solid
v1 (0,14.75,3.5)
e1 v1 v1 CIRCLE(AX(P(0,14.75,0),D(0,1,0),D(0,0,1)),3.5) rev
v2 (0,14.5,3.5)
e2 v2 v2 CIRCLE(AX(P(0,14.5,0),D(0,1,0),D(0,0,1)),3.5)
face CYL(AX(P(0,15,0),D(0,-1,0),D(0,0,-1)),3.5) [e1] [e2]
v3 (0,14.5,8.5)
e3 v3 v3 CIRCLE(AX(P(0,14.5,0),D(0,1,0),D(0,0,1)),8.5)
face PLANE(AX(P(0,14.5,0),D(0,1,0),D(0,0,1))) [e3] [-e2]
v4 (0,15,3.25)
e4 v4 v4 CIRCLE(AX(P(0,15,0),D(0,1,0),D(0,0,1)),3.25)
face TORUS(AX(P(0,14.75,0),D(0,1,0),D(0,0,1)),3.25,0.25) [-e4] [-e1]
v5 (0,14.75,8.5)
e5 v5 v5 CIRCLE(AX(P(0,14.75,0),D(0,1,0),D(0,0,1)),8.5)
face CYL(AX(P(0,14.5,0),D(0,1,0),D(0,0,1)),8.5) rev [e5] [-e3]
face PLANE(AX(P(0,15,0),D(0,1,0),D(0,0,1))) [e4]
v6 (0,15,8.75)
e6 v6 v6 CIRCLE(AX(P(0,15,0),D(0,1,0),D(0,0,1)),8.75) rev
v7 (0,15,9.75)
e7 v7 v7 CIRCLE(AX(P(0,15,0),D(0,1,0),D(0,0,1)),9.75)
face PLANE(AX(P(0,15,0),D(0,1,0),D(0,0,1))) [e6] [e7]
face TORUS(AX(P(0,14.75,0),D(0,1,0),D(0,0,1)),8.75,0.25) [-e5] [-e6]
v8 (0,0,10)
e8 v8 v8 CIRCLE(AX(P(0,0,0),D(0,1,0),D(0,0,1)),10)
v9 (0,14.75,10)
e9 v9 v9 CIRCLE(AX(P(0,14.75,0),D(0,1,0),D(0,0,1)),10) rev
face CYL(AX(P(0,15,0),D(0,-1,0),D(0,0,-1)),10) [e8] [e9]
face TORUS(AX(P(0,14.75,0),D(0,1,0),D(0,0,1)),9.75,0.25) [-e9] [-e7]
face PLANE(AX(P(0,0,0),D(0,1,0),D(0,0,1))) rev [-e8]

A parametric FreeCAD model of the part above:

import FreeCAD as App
import Part
import Sketcher

V = App.Vector
Q = App.Units.Quantity


def edges_at(feature, points):
    """Names of the edges that pass closest to the given points."""
    edges = feature.Shape.Edges
    near = lambda p: min(range(len(edges)), key=lambda i: edges[i].distToShape(Part.Vertex(*p))[0])
    return sorted({f"Edge{near(p) + 1}" for p in points})

doc = App.newDocument("Part")
params = doc.addObject("Spreadsheet::Sheet", "Params")
for row, (alias, value) in enumerate([
    ("sketch1_diameter", "20 mm"),
    ("pad1_length", "15 mm"),
    ("sketch2_diameter", "17 mm"),
    ("pocket1_length", "0.5 mm"),
    ("sketch3_diameter", "7 mm"),
    ("pad2_length", "0.5 mm"),
    ("fillet_radius", "0.25 mm"),
], start=1):
    params.set(f"A{row}", alias)
    params.set(f"B{row}", "=" + value)
    params.setAlias(f"B{row}", alias)

body = doc.addObject("PartDesign::Body", "Body")

sketch1 = doc.addObject("Sketcher::SketchObject", "Sketch")
body.addObject(sketch1)
sketch1.AttachmentSupport = (doc.XZ_Plane, [""])
sketch1.MapMode = "FlatFace"
sketch1.addGeometry(Part.Circle(V(0, 0, 0), V(0, 0, 1), 10), False)
sketch1.addConstraint(Sketcher.Constraint("Coincident", 0, 3, -1, 1))
sketch1.addConstraint(Sketcher.Constraint("Diameter", 0, Q("20 mm")))
sketch1.setExpression("Constraints[1]", "Params.sketch1_diameter")
pad1 = doc.addObject("PartDesign::Pad", "Pad")
body.addObject(pad1)
pad1.Profile = sketch1
pad1.setExpression("Length", "Params.pad1_length")
pad1.Reversed = True

sketch2 = doc.addObject("Sketcher::SketchObject", "Sketch001")
body.addObject(sketch2)
sketch2.AttachmentSupport = (doc.XZ_Plane, [""])
sketch2.MapMode = "FlatFace"
sketch2.AttachmentOffset = App.Placement(V(0, 0, -15), App.Rotation())
sketch2.addGeometry(Part.Circle(V(0, 0, 0), V(0, 0, 1), 8), False)
sketch2.addConstraint(Sketcher.Constraint("Coincident", 0, 3, -1, 1))
sketch2.addConstraint(Sketcher.Constraint("Diameter", 0, Q("17 mm")))
sketch2.setExpression("Constraints[1]", "Params.sketch2_diameter")
pocket1 = doc.addObject("PartDesign::Pocket", "Pocket")
body.addObject(pocket1)
pocket1.Profile = sketch2
pocket1.setExpression("Length", "Params.pocket1_length")
pocket1.Reversed = True

sketch3 = doc.addObject("Sketcher::SketchObject", "Sketch002")
body.addObject(sketch3)
sketch3.AttachmentSupport = (doc.XZ_Plane, [""])
sketch3.MapMode = "FlatFace"
sketch3.AttachmentOffset = App.Placement(V(0, 0, -14.5), App.Rotation())
sketch3.addGeometry(Part.Circle(V(0, 0, 0), V(0, 0, 1), 3.5), False)
sketch3.addConstraint(Sketcher.Constraint("Coincident", 0, 3, -1, 1))
sketch3.addConstraint(Sketcher.Constraint("Diameter", 0, Q("7 mm")))
sketch3.setExpression("Constraints[1]", "Params.sketch3_diameter")
pad2 = doc.addObject("PartDesign::Pad", "Pad001")
body.addObject(pad2)
pad2.Profile = sketch3
pad2.setExpression("Length", "Params.pad2_length")
pad2.Reversed = True
doc.recompute()

fillet = doc.addObject("PartDesign::Fillet", "Fillet")
body.addObject(fillet)
fillet.Base = (pad2, edges_at(pad2, [(0, 15, -3.5), (0, 15, -10), (0, 15, -8.5)]))
fillet.setExpression("Radius", "Params.fillet_radius")

doc.recompute()
